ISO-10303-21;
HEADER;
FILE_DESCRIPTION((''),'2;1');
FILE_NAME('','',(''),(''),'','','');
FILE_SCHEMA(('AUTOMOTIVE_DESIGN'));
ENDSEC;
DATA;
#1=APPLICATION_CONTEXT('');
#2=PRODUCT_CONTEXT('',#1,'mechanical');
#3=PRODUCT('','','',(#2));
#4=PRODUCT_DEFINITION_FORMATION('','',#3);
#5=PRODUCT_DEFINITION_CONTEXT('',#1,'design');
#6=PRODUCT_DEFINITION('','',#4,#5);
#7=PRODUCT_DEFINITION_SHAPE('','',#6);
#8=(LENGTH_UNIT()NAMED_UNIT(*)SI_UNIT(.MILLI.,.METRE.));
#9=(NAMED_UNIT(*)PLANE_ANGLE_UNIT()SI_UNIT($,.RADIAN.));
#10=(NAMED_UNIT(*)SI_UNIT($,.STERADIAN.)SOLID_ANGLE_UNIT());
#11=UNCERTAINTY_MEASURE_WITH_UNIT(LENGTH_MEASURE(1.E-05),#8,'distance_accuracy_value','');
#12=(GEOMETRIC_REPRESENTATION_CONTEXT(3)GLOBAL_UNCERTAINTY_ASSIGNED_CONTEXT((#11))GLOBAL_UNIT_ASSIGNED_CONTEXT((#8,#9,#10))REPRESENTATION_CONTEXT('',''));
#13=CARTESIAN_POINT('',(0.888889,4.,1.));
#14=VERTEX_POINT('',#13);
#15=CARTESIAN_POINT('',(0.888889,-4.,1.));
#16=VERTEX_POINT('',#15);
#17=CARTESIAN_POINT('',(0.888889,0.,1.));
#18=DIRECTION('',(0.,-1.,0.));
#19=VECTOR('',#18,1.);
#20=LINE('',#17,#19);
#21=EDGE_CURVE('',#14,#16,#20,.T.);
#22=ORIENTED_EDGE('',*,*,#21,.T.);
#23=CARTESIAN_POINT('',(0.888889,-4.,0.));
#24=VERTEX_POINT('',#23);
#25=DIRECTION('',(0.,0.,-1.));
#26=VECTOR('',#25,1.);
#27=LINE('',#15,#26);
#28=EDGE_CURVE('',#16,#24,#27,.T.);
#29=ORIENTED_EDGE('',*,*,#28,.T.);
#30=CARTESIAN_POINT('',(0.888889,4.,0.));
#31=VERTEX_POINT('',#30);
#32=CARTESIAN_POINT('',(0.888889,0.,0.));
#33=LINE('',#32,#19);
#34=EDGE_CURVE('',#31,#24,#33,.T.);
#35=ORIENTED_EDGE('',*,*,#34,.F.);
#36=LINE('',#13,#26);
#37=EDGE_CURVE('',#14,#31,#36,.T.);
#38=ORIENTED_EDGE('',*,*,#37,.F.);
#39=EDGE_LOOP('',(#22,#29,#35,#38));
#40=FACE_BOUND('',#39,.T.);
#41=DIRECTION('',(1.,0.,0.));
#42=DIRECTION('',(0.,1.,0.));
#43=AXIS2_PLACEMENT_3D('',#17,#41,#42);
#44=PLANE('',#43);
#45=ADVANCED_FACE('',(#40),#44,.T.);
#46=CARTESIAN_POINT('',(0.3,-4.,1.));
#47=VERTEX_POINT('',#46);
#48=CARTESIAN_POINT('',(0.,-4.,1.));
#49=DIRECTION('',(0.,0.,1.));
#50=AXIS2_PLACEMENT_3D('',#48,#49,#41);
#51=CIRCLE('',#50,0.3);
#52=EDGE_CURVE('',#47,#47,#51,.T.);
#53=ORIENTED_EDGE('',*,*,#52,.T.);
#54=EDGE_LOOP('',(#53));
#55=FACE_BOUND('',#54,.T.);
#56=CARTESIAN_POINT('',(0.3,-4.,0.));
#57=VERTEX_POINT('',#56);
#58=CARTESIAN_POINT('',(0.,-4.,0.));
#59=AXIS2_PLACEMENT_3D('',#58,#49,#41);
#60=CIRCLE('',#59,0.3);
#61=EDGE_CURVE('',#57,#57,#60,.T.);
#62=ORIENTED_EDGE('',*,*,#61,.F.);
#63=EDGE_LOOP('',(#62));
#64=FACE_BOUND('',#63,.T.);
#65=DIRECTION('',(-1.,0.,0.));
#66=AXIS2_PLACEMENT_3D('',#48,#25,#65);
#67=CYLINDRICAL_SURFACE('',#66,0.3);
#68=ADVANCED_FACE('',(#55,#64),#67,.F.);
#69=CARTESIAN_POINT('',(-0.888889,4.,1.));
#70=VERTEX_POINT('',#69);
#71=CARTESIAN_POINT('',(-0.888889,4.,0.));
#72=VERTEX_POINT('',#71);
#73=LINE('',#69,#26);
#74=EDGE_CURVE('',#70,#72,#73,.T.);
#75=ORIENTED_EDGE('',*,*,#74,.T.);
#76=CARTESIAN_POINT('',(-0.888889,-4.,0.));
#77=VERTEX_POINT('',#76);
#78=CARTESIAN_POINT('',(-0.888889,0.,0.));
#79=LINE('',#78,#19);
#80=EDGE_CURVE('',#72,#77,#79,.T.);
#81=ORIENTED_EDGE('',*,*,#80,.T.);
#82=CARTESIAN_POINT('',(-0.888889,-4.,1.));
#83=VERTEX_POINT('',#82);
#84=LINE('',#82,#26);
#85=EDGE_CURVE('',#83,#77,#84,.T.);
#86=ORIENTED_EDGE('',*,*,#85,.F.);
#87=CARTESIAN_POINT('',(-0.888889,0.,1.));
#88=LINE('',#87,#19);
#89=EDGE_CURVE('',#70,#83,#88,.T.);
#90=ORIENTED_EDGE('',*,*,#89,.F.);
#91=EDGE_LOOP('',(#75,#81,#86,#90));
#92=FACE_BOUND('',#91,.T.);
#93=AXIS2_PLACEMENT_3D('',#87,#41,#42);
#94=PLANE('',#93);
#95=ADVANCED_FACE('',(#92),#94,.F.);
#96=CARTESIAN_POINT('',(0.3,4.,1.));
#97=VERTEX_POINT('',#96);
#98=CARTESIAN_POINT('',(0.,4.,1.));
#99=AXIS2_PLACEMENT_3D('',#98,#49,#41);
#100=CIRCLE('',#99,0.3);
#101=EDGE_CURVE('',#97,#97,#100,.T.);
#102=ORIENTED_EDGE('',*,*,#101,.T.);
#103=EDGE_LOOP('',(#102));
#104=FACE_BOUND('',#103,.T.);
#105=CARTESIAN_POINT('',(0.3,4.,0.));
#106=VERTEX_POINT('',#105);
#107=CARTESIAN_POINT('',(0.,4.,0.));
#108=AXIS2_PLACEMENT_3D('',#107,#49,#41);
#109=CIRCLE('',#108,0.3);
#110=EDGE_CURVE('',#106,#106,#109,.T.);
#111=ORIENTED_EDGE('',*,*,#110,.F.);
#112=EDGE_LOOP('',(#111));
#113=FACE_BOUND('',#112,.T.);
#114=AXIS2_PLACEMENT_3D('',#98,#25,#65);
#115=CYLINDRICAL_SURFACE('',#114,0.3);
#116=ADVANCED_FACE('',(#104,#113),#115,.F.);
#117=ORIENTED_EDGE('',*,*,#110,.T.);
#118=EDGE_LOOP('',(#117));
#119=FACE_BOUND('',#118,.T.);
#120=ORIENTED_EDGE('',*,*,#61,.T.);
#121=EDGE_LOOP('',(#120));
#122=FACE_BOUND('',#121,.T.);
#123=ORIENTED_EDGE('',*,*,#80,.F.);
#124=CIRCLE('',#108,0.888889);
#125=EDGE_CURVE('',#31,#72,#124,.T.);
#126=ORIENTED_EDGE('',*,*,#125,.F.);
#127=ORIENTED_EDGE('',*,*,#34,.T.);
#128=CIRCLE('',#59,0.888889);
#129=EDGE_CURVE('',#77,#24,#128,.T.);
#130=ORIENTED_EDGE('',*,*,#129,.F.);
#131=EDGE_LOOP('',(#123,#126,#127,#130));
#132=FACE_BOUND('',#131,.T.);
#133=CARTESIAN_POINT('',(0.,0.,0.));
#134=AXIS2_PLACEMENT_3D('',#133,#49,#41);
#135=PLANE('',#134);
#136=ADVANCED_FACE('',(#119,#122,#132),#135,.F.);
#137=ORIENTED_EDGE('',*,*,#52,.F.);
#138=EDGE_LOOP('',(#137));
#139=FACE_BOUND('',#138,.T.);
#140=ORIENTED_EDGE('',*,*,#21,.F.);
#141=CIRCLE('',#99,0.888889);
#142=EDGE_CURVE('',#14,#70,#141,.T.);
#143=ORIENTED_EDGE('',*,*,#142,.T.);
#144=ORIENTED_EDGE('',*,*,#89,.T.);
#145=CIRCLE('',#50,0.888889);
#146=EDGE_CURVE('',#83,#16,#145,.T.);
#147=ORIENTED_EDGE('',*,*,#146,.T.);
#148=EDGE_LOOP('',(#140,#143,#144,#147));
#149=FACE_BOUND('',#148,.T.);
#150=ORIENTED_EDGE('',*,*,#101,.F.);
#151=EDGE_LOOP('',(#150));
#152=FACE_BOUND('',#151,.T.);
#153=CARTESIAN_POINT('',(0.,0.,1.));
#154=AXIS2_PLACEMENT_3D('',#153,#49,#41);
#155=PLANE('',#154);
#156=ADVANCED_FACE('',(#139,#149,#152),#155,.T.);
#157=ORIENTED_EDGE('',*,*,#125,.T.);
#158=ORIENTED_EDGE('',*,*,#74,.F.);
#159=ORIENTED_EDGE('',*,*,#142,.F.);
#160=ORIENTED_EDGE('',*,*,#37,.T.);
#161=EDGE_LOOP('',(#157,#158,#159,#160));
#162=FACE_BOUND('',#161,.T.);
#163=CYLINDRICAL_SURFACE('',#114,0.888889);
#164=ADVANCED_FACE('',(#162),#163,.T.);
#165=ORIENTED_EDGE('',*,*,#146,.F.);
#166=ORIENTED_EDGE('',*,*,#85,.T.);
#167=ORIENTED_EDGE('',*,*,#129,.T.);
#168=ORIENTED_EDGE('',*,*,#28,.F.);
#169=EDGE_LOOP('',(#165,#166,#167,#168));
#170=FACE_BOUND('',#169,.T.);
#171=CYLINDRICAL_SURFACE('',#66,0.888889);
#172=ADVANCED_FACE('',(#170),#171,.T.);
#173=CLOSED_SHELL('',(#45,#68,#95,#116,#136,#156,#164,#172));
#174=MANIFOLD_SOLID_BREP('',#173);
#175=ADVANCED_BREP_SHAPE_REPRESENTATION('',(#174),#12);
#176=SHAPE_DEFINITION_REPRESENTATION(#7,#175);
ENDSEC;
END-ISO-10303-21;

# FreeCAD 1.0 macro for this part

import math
import FreeCAD as App
import Part
import Sketcher
Q = App.Units.Quantity

doc = App.newDocument("Part")
body = doc.addObject("PartDesign::Body", "Body")

# Sketch on XY plane
sketch1 = body.newObject("Sketcher::SketchObject", "Sketch")
sketch1.AttachmentSupport = (doc.getObject("XY_Plane"), [""])
sketch1.MapMode = "FlatFace"
sketch1.addGeometry([
    Part.LineSegment(App.Vector(-0.888889, 4, 0), App.Vector(-0.888889, -4, 0)),  # 0
    Part.ArcOfCircle(Part.Circle(App.Vector(0, -4, 0), App.Vector(0, 0, 1), 0.888889), math.radians(180), math.radians(360)),  # 1
    Part.LineSegment(App.Vector(0.888889, -4, 0), App.Vector(0.888889, 4, 0)),  # 2
    Part.ArcOfCircle(Part.Circle(App.Vector(0, 4, 0), App.Vector(0, 0, 1), 0.888889), math.radians(0), math.radians(180)),  # 3
    Part.Circle(App.Vector(0, 4, 0), App.Vector(0, 0, 1), 0.3),  # 4
    Part.Circle(App.Vector(0, -4, 0), App.Vector(0, 0, 1), 0.3),  # 5
], False)
sketch1.addConstraint([
    Sketcher.Constraint("Tangent", 0, 2, 1, 1),
    Sketcher.Constraint("Tangent", 1, 2, 2, 1),
    Sketcher.Constraint("Tangent", 2, 2, 3, 1),
    Sketcher.Constraint("Tangent", 3, 2, 0, 1),
    Sketcher.Constraint("Vertical", 0),
    Sketcher.Constraint("Vertical", 2),
    Sketcher.Constraint("Coincident", 4, 3, 3, 3),
    Sketcher.Constraint("Coincident", 5, 3, 1, 3),
    Sketcher.Constraint("Equal", 4, 5),
    Sketcher.Constraint("Symmetric", 1, 3, 3, 3, -1, 1),
    Sketcher.Constraint("Diameter", 4, Q("0.6 mm")),
    Sketcher.Constraint("DistanceY", 0, 2, 0, 1, Q("8 mm")),
    Sketcher.Constraint("Radius", 1, Q("0.888889 mm")),
])
pad1 = body.newObject("PartDesign::Pad", "Pad")
pad1.Profile = sketch1
pad1.Length = 1

doc.recompute()
